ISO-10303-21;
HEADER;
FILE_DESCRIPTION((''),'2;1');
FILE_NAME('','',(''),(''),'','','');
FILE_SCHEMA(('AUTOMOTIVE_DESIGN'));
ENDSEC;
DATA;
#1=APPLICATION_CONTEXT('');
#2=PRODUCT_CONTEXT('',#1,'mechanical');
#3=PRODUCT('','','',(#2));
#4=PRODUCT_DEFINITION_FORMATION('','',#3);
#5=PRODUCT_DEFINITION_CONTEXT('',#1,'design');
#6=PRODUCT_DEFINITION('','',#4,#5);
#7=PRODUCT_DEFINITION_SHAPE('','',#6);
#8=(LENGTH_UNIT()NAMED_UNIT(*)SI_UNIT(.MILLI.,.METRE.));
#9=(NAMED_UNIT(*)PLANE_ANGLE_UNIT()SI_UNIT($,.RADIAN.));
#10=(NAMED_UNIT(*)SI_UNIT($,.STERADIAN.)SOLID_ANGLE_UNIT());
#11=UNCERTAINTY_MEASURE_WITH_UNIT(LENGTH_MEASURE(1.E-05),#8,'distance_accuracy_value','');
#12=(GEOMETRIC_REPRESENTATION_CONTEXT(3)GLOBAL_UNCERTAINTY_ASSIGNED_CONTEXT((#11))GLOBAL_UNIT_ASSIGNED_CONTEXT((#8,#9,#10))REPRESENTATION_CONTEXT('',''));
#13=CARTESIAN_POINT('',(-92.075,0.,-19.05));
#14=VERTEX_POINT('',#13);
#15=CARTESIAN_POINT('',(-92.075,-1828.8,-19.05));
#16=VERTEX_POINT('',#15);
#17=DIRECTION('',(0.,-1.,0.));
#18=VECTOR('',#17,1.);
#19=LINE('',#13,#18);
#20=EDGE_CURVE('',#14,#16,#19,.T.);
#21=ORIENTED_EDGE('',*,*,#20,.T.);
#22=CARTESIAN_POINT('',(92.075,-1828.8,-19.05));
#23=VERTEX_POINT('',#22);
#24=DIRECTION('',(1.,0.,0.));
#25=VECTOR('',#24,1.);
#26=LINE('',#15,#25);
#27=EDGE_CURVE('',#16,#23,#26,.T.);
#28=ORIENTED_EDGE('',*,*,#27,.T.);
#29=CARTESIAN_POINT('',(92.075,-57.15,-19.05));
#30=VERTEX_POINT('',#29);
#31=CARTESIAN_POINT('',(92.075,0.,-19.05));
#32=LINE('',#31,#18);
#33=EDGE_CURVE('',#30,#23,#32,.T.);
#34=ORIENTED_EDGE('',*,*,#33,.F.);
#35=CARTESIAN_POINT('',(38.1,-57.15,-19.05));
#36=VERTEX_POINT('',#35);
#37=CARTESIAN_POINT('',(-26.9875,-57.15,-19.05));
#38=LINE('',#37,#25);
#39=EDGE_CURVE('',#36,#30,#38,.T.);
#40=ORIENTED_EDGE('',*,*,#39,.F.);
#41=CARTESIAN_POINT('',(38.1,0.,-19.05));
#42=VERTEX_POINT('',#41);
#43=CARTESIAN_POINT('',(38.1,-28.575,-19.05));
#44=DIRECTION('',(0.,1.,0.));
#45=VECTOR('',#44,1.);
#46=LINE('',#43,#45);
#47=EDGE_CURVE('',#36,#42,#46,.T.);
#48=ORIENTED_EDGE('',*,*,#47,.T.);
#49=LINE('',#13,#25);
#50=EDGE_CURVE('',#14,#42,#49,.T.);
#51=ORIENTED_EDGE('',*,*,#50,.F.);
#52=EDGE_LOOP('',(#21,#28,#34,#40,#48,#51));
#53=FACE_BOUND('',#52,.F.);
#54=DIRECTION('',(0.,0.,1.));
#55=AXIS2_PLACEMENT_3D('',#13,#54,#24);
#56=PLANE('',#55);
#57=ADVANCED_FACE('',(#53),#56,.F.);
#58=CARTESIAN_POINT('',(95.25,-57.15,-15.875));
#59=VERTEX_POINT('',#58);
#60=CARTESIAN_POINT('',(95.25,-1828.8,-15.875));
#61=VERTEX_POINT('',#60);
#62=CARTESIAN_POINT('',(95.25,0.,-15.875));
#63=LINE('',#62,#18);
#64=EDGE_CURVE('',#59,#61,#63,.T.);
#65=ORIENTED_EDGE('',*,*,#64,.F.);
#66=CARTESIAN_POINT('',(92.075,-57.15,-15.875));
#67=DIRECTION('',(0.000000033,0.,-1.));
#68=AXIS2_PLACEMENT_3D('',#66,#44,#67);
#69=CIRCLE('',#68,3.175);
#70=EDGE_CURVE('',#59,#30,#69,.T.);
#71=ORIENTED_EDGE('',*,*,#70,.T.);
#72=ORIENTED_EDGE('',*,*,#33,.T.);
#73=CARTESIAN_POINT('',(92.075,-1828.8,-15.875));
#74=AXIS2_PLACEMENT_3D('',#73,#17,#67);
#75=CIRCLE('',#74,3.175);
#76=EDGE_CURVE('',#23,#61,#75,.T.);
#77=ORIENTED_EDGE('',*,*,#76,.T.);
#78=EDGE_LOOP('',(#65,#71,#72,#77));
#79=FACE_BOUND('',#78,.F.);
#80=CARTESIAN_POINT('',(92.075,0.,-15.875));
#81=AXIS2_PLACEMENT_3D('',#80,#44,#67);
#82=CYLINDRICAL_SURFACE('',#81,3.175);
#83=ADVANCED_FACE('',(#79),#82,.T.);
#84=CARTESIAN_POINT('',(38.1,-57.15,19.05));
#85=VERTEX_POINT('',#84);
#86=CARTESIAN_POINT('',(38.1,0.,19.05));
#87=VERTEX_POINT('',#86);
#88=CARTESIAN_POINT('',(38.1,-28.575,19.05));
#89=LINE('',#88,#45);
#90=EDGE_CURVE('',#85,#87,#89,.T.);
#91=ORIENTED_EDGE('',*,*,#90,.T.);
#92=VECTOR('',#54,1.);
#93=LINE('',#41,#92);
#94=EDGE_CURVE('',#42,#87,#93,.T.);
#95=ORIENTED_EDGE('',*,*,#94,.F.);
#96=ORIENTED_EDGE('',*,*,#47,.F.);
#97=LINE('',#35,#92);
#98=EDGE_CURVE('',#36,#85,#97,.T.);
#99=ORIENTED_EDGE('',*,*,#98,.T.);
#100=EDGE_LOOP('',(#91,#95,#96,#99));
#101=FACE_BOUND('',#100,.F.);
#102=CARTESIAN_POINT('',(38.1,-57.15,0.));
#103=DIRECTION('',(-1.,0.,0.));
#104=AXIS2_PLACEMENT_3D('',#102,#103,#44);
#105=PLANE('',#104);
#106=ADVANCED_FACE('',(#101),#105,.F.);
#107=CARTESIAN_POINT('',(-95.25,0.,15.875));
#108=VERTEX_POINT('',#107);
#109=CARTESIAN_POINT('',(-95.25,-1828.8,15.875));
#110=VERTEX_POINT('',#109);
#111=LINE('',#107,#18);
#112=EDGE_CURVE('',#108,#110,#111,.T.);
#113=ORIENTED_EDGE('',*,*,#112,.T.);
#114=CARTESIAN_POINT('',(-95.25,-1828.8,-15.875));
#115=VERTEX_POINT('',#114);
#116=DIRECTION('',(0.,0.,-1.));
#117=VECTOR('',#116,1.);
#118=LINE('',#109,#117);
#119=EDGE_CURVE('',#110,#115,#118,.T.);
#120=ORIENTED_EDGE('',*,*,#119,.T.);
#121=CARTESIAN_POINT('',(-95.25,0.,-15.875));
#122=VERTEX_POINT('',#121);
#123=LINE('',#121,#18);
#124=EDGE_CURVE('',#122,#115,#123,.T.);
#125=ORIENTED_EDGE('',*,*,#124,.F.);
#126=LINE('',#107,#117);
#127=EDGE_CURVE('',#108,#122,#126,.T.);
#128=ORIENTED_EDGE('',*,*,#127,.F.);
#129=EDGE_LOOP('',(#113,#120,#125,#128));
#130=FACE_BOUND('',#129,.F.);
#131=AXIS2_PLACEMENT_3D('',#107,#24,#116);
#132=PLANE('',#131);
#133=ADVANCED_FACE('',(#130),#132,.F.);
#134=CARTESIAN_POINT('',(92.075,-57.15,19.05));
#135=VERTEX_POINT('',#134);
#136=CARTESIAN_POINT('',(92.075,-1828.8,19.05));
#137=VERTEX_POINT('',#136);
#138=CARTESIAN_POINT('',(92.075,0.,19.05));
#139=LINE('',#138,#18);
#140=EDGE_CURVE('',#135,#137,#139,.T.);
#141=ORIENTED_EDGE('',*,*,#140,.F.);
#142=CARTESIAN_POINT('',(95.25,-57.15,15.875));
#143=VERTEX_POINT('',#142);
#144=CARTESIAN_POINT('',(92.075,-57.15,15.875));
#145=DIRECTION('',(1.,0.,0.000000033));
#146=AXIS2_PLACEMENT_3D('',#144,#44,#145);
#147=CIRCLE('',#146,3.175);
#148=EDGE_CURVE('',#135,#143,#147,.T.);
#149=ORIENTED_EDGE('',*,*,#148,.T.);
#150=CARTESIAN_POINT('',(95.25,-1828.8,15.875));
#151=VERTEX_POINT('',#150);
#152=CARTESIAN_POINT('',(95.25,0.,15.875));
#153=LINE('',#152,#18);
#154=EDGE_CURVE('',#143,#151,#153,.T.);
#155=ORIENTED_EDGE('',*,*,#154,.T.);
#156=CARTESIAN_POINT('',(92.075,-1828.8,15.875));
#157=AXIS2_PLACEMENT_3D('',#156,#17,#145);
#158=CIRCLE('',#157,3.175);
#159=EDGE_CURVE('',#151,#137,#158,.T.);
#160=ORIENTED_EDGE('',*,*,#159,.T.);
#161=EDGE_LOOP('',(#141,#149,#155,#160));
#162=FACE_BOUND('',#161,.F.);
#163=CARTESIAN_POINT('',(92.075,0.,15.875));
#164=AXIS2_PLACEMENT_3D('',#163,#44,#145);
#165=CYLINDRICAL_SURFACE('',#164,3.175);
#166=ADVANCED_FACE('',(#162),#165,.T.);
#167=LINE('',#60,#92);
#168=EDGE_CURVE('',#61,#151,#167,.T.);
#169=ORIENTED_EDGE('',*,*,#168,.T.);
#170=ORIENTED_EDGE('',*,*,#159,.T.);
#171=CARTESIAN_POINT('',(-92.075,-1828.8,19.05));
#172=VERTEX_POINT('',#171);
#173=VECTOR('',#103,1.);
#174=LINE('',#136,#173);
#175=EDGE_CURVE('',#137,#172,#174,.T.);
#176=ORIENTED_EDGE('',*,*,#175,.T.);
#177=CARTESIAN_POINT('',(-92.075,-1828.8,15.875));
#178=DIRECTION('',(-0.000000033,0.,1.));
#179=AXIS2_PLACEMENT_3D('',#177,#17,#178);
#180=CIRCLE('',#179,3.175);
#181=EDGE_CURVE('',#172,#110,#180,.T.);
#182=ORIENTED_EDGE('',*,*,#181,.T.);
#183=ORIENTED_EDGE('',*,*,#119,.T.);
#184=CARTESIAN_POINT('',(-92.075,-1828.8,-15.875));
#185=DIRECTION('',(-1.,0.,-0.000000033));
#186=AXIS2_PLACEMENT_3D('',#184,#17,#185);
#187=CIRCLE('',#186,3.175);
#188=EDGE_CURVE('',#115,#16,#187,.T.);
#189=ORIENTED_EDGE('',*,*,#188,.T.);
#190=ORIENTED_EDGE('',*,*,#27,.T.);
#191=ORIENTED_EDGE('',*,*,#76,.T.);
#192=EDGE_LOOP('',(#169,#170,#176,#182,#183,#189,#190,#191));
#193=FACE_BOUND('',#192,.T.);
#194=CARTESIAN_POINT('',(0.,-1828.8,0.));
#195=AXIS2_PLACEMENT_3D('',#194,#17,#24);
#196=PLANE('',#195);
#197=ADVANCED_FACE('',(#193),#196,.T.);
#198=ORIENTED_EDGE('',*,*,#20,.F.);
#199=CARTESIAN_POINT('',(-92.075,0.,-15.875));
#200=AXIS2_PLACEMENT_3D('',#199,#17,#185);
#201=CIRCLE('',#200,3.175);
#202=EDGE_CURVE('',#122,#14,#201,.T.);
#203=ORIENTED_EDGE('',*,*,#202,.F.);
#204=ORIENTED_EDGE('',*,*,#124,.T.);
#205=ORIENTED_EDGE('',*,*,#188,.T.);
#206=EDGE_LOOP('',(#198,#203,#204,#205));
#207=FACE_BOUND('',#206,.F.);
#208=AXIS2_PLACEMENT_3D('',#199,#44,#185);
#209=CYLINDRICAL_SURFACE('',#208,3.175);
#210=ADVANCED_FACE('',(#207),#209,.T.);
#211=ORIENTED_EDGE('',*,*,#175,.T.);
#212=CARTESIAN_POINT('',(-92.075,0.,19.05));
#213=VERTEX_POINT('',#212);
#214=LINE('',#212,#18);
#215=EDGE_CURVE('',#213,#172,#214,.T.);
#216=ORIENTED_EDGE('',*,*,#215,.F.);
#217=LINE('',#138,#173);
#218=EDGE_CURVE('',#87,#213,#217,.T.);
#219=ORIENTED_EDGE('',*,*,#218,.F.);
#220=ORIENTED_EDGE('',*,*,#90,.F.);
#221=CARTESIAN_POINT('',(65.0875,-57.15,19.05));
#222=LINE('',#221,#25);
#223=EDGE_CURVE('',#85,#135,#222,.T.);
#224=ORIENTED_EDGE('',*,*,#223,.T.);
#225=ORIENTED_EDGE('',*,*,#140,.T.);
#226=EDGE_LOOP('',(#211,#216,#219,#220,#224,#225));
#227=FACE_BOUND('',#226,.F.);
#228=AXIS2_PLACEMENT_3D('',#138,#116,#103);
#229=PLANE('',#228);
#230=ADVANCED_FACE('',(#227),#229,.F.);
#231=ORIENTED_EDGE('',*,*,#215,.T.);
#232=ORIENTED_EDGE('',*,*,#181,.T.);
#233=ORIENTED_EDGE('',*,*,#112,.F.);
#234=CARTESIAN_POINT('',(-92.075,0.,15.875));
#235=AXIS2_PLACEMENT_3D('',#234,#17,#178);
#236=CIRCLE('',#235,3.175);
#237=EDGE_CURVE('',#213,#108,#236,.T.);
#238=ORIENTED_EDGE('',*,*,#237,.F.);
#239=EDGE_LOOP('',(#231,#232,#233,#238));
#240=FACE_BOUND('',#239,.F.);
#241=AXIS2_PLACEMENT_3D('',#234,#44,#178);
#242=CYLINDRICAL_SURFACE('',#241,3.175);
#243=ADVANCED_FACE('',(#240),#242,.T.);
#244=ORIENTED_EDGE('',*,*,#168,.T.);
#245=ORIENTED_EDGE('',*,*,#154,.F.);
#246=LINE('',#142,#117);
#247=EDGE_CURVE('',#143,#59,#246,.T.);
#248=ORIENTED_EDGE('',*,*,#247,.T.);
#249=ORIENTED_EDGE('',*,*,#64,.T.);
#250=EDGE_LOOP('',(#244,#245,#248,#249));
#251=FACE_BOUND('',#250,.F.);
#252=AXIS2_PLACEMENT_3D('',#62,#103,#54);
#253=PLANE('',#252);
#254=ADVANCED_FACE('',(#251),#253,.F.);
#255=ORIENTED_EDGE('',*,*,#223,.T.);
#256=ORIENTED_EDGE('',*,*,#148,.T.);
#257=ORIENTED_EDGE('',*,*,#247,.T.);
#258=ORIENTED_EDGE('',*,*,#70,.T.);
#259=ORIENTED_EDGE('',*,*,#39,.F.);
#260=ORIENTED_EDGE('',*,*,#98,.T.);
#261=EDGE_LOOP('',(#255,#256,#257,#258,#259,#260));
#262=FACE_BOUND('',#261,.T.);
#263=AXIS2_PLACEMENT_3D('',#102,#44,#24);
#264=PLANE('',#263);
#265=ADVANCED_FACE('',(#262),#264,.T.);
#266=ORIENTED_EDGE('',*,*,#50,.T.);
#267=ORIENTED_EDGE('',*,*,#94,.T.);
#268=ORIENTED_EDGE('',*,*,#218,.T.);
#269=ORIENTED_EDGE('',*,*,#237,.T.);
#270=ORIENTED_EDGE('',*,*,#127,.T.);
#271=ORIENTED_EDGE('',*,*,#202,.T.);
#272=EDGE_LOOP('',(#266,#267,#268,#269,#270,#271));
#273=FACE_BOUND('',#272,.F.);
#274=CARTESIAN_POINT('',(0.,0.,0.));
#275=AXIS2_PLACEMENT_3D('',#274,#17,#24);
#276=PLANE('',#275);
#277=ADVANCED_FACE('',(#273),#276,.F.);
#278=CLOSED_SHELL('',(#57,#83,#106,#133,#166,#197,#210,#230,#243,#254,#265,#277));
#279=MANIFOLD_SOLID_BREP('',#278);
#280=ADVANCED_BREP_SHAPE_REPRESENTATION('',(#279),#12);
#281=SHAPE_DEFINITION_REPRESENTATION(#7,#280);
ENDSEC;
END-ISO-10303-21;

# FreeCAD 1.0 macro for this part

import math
import FreeCAD as App
import Part
import Sketcher
Q = App.Units.Quantity


def add_polygon(sketch, points):
    """Adds a closed chain of lines whose ends are joined by coincident constraints."""
    first, n = sketch.GeometryCount, len(points)
    for a, b in zip(points, points[1:] + points[:1]):
        sketch.addGeometry(Part.LineSegment(App.Vector(*a, 0), App.Vector(*b, 0)), False)
    for i in range(n):
        sketch.addConstraint(Sketcher.Constraint("Coincident", first + i, 2, first + (i + 1) % n, 1))

doc = App.newDocument("Part")
body = doc.addObject("PartDesign::Body", "Body")

# Sketch on XZ plane
sketch1 = body.newObject("Sketcher::SketchObject", "Sketch")
sketch1.AttachmentSupport = (doc.getObject("XZ_Plane"), [""])
sketch1.MapMode = "FlatFace"
sketch1.addGeometry([
    Part.ArcOfCircle(Part.Circle(App.Vector(92.1, 15.9, 0), App.Vector(0, 0, 1), 3.2), math.radians(0), math.radians(90)),  # 0
    Part.LineSegment(App.Vector(92.1, 19.1, 0), App.Vector(-92.1, 19.1, 0)),  # 1
    Part.ArcOfCircle(Part.Circle(App.Vector(-92.1, 15.9, 0), App.Vector(0, 0, 1), 3.2), math.radians(90), math.radians(180)),  # 2
    Part.LineSegment(App.Vector(-95.2, 15.9, 0), App.Vector(-95.2, -15.9, 0)),  # 3
    Part.ArcOfCircle(Part.Circle(App.Vector(-92.1, -15.9, 0), App.Vector(0, 0, 1), 3.2), math.radians(-180), math.radians(-90)),  # 4
    Part.LineSegment(App.Vector(-92.1, -19.1, 0), App.Vector(92.1, -19.1, 0)),  # 5
    Part.ArcOfCircle(Part.Circle(App.Vector(92.1, -15.9, 0), App.Vector(0, 0, 1), 3.2), math.radians(-90), math.radians(0)),  # 6
    Part.LineSegment(App.Vector(95.2, -15.9, 0), App.Vector(95.2, 15.9, 0)),  # 7
], False)
sketch1.addConstraint([
    Sketcher.Constraint("Tangent", 0, 2, 1, 1),
    Sketcher.Constraint("Tangent", 1, 2, 2, 1),
    Sketcher.Constraint("Tangent", 2, 2, 3, 1),
    Sketcher.Constraint("Tangent", 3, 2, 4, 1),
    Sketcher.Constraint("Tangent", 4, 2, 5, 1),
    Sketcher.Constraint("Tangent", 5, 2, 6, 1),
    Sketcher.Constraint("Tangent", 6, 2, 7, 1),
    Sketcher.Constraint("Tangent", 7, 2, 0, 1),
    Sketcher.Constraint("Horizontal", 1),
    Sketcher.Constraint("Vertical", 3),
    Sketcher.Constraint("Horizontal", 5),
    Sketcher.Constraint("Vertical", 7),
    Sketcher.Constraint("Equal", 0, 2),
    Sketcher.Constraint("Equal", 2, 4),
    Sketcher.Constraint("Equal", 4, 6),
    Sketcher.Constraint("Symmetric", 0, 3, 4, 3, -1, 1),
    Sketcher.Constraint("Radius", 0, Q("0.125 in")),
    Sketcher.Constraint("DistanceX", 1, 2, 1, 1, Q("7.25 in")),
    Sketcher.Constraint("DistanceY", 3, 2, 3, 1, Q("1.25 in")),
])
pad1 = body.newObject("PartDesign::Pad", "Pad")
pad1.Profile = sketch1
pad1.Length = Q("72 in")

# Sketch on XY plane
sketch2 = body.newObject("Sketcher::SketchObject", "Sketch001")
sketch2.AttachmentSupport = (doc.getObject("XY_Plane"), [""])
sketch2.MapMode = "FlatFace"
add_polygon(sketch2, [(38, 0), (38, -57), (95, -57), (95, 0)])  # lines 0-3
sketch2.addConstraint([
    Sketcher.Constraint("Vertical", 0),
    Sketcher.Constraint("Horizontal", 1),
    Sketcher.Constraint("Vertical", 2),
    Sketcher.Constraint("Horizontal", 3),
    Sketcher.Constraint("PointOnObject", 2, 2, -1),
    Sketcher.Constraint("Equal", 3, 0),
    Sketcher.Constraint("DistanceX", 1, 1, 1, 2, Q("2.25 in")),
    Sketcher.Constraint("DistanceX", -1, 1, 0, 2, Q("1.5 in")),
])
pocket1 = body.newObject("PartDesign::Pocket", "Pocket")
pocket1.Profile = sketch2
pocket1.Type = "ThroughAll"
pocket1.Midplane = True

doc.recompute()
